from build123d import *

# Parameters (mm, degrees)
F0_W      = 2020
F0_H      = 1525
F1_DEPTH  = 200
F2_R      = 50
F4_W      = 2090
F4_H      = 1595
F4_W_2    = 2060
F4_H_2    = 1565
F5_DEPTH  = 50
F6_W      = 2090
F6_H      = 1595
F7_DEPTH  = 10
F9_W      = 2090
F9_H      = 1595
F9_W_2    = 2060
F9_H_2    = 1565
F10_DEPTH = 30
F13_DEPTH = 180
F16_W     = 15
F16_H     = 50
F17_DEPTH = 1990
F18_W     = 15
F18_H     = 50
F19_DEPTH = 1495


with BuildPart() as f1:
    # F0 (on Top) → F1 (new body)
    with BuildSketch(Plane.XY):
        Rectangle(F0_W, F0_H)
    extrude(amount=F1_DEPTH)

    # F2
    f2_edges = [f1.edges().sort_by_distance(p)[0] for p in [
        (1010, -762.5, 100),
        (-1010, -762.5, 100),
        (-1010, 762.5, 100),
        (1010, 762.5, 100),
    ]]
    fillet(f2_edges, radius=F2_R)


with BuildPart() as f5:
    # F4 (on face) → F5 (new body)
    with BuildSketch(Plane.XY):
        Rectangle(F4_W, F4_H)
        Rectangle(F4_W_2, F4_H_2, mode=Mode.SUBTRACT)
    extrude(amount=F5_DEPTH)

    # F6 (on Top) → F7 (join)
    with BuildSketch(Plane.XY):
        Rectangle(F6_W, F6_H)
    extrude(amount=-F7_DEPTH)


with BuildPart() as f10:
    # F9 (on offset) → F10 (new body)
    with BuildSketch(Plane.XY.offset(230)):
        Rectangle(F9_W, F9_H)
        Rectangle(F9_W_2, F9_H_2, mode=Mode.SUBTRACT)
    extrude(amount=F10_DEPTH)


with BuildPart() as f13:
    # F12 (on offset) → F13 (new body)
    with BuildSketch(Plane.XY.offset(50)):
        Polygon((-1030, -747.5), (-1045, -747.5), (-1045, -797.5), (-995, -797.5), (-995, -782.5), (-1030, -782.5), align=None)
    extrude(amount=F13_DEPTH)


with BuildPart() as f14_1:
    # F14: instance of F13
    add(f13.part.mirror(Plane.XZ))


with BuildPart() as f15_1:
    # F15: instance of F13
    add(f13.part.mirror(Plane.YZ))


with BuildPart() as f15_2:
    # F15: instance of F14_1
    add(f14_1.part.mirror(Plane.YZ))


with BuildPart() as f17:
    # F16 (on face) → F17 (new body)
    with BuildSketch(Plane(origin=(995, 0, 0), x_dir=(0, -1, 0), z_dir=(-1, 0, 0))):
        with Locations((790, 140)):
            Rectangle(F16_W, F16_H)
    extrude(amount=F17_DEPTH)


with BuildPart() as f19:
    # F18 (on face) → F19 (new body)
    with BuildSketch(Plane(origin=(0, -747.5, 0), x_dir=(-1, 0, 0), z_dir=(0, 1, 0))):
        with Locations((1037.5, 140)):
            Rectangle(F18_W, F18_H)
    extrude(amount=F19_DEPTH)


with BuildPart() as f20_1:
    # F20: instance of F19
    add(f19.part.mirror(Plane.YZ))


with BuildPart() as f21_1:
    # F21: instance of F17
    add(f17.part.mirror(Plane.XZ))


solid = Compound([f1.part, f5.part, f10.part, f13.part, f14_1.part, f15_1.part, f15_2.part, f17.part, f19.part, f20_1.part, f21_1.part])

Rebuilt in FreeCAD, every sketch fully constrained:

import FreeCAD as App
import Part
import Sketcher
from FreeCAD import Vector


def edges_at(feature, points):
    """Names of the edges that pass closest to the given points."""
    edges = feature.Shape.Edges
    near = lambda p: min(range(len(edges)), key=lambda i: edges[i].distToShape(Part.Vertex(*p))[0])
    return sorted({f"Edge{near(p) + 1}" for p in points})

doc = App.newDocument("Part")
body = doc.addObject("PartDesign::Body", "Body")

# Sketch on XY plane
sketch1 = doc.addObject("Sketcher::SketchObject", "Sketch")
body.addObject(sketch1)
sketch1.AttachmentSupport = (doc.XY_Plane, [""])
sketch1.MapMode = "FlatFace"
sketch1.addGeometry([
    Part.LineSegment(Vector(-1010, 762, 0), Vector(-1010, -762, 0)),
    Part.LineSegment(Vector(-1010, -762, 0), Vector(1010, -762, 0)),
    Part.LineSegment(Vector(1010, -762, 0), Vector(1010, 762, 0)),
    Part.LineSegment(Vector(1010, 762, 0), Vector(-1010, 762, 0)),
], False)
sketch1.addConstraint([
    Sketcher.Constraint("Coincident", 0, 2, 1, 1),
    Sketcher.Constraint("Coincident", 1, 2, 2, 1),
    Sketcher.Constraint("Coincident", 2, 2, 3, 1),
    Sketcher.Constraint("Coincident", 3, 2, 0, 1),
    Sketcher.Constraint("Vertical", 0),
    Sketcher.Constraint("Horizontal", 1),
    Sketcher.Constraint("Vertical", 2),
    Sketcher.Constraint("Horizontal", 3),
    Sketcher.Constraint("Symmetric", 0, 2, 2, 2, -1, 1),
    Sketcher.Constraint("DistanceX", 1, 1, 1, 2, 2020.0),
    Sketcher.Constraint("DistanceY", 0, 2, 0, 1, 1525.0),
])
pad1 = doc.addObject("PartDesign::Pad", "Pad")
body.addObject(pad1)
pad1.Profile = sketch1
pad1.Length = 200
doc.recompute()

fillet = doc.addObject("PartDesign::Fillet", "Fillet")
body.addObject(fillet)
fillet.Base = (pad1, edges_at(pad1, [
    (1010, -762.5, 100),
    (-1010, -762.5, 100),
    (-1010, 762.5, 100),
    (1010, 762.5, 100),
]))
fillet.Radius = 50
body2 = doc.addObject("PartDesign::Body", "Body001")

# Sketch on XY plane
sketch2 = doc.addObject("Sketcher::SketchObject", "Sketch001")
body2.addObject(sketch2)
sketch2.AttachmentSupport = (doc.getObject("XY_Plane001"), [""])
sketch2.MapMode = "FlatFace"
sketch2.addGeometry([
    Part.LineSegment(Vector(-1045, 798, 0), Vector(-1045, -798, 0)),  # 0
    Part.LineSegment(Vector(-1045, -798, 0), Vector(1045, -798, 0)),  # 1
    Part.LineSegment(Vector(1045, -798, 0), Vector(1045, 798, 0)),  # 2
    Part.LineSegment(Vector(1045, 798, 0), Vector(-1045, 798, 0)),  # 3
    Part.LineSegment(Vector(1030, -782, 0), Vector(-1030, -782, 0)),  # 4
    Part.LineSegment(Vector(-1030, -782, 0), Vector(-1030, 782, 0)),  # 5
    Part.LineSegment(Vector(-1030, 782, 0), Vector(1030, 782, 0)),  # 6
    Part.LineSegment(Vector(1030, 782, 0), Vector(1030, -782, 0)),  # 7
], False)
sketch2.addConstraint([
    Sketcher.Constraint("Coincident", 0, 2, 1, 1),
    Sketcher.Constraint("Coincident", 1, 2, 2, 1),
    Sketcher.Constraint("Coincident", 2, 2, 3, 1),
    Sketcher.Constraint("Coincident", 3, 2, 0, 1),
    Sketcher.Constraint("Coincident", 4, 2, 5, 1),
    Sketcher.Constraint("Coincident", 5, 2, 6, 1),
    Sketcher.Constraint("Coincident", 6, 2, 7, 1),
    Sketcher.Constraint("Coincident", 7, 2, 4, 1),
    Sketcher.Constraint("Vertical", 0),
    Sketcher.Constraint("Horizontal", 1),
    Sketcher.Constraint("Vertical", 2),
    Sketcher.Constraint("Horizontal", 3),
    Sketcher.Constraint("Horizontal", 4),
    Sketcher.Constraint("Vertical", 5),
    Sketcher.Constraint("Horizontal", 6),
    Sketcher.Constraint("Vertical", 7),
    Sketcher.Constraint("Symmetric", 0, 2, 2, 2, -1, 1),
    Sketcher.Constraint("Symmetric", 4, 2, 6, 2, -1, 1),
    Sketcher.Constraint("DistanceX", 1, 1, 1, 2, 2090.0),
    Sketcher.Constraint("DistanceX", 4, 2, 4, 1, 2060.0),
    Sketcher.Constraint("DistanceY", 0, 2, 0, 1, 1595.0),
    Sketcher.Constraint("DistanceY", 5, 1, 5, 2, 1565.0),
])
pad2 = doc.addObject("PartDesign::Pad", "Pad001")
body2.addObject(pad2)
pad2.Profile = sketch2
pad2.Length = 50

# Sketch on XY plane
sketch3 = doc.addObject("Sketcher::SketchObject", "Sketch002")
body2.addObject(sketch3)
sketch3.AttachmentSupport = (doc.getObject("XY_Plane001"), [""])
sketch3.MapMode = "FlatFace"
sketch3.addGeometry([
    Part.LineSegment(Vector(-1045, 798, 0), Vector(-1045, -798, 0)),
    Part.LineSegment(Vector(-1045, -798, 0), Vector(1045, -798, 0)),
    Part.LineSegment(Vector(1045, -798, 0), Vector(1045, 798, 0)),
    Part.LineSegment(Vector(1045, 798, 0), Vector(-1045, 798, 0)),
], False)
sketch3.addConstraint([
    Sketcher.Constraint("Coincident", 0, 2, 1, 1),
    Sketcher.Constraint("Coincident", 1, 2, 2, 1),
    Sketcher.Constraint("Coincident", 2, 2, 3, 1),
    Sketcher.Constraint("Coincident", 3, 2, 0, 1),
    Sketcher.Constraint("Vertical", 0),
    Sketcher.Constraint("Horizontal", 1),
    Sketcher.Constraint("Vertical", 2),
    Sketcher.Constraint("Horizontal", 3),
    Sketcher.Constraint("Symmetric", 0, 2, 2, 2, -1, 1),
    Sketcher.Constraint("DistanceX", 1, 1, 1, 2, 2090.0),
    Sketcher.Constraint("DistanceY", 0, 2, 0, 1, 1595.0),
])
pad3 = doc.addObject("PartDesign::Pad", "Pad002")
body2.addObject(pad3)
pad3.Profile = sketch3
pad3.Length = 10
pad3.Reversed = True
body3 = doc.addObject("PartDesign::Body", "Body002")

# Sketch on XY plane
sketch4 = doc.addObject("Sketcher::SketchObject", "Sketch003")
body3.addObject(sketch4)
sketch4.AttachmentSupport = (doc.getObject("XY_Plane002"), [""])
sketch4.MapMode = "FlatFace"
sketch4.AttachmentOffset = App.Placement(Vector(0, 0, 230), App.Rotation())
sketch4.addGeometry([
    Part.LineSegment(Vector(-1045, 798, 0), Vector(-1045, -798, 0)),  # 0
    Part.LineSegment(Vector(-1045, -798, 0), Vector(1045, -798, 0)),  # 1
    Part.LineSegment(Vector(1045, -798, 0), Vector(1045, 798, 0)),  # 2
    Part.LineSegment(Vector(1045, 798, 0), Vector(-1045, 798, 0)),  # 3
    Part.LineSegment(Vector(1030, -782, 0), Vector(-1030, -782, 0)),  # 4
    Part.LineSegment(Vector(-1030, -782, 0), Vector(-1030, 782, 0)),  # 5
    Part.LineSegment(Vector(-1030, 782, 0), Vector(1030, 782, 0)),  # 6
    Part.LineSegment(Vector(1030, 782, 0), Vector(1030, -782, 0)),  # 7
], False)
sketch4.addConstraint([
    Sketcher.Constraint("Coincident", 0, 2, 1, 1),
    Sketcher.Constraint("Coincident", 1, 2, 2, 1),
    Sketcher.Constraint("Coincident", 2, 2, 3, 1),
    Sketcher.Constraint("Coincident", 3, 2, 0, 1),
    Sketcher.Constraint("Coincident", 4, 2, 5, 1),
    Sketcher.Constraint("Coincident", 5, 2, 6, 1),
    Sketcher.Constraint("Coincident", 6, 2, 7, 1),
    Sketcher.Constraint("Coincident", 7, 2, 4, 1),
    Sketcher.Constraint("Vertical", 0),
    Sketcher.Constraint("Horizontal", 1),
    Sketcher.Constraint("Vertical", 2),
    Sketcher.Constraint("Horizontal", 3),
    Sketcher.Constraint("Horizontal", 4),
    Sketcher.Constraint("Vertical", 5),
    Sketcher.Constraint("Horizontal", 6),
    Sketcher.Constraint("Vertical", 7),
    Sketcher.Constraint("Symmetric", 0, 2, 2, 2, -1, 1),
    Sketcher.Constraint("Symmetric", 4, 2, 6, 2, -1, 1),
    Sketcher.Constraint("DistanceX", 1, 1, 1, 2, 2090.0),
    Sketcher.Constraint("DistanceX", 4, 2, 4, 1, 2060.0),
    Sketcher.Constraint("DistanceY", 0, 2, 0, 1, 1595.0),
    Sketcher.Constraint("DistanceY", 5, 1, 5, 2, 1565.0),
])
pad4 = doc.addObject("PartDesign::Pad", "Pad003")
body3.addObject(pad4)
pad4.Profile = sketch4
pad4.Length = 30
body4 = doc.addObject("PartDesign::Body", "Body003")

# Sketch on XY plane
sketch5 = doc.addObject("Sketcher::SketchObject", "Sketch004")
body4.addObject(sketch5)
sketch5.AttachmentSupport = (doc.getObject("XY_Plane003"), [""])
sketch5.MapMode = "FlatFace"
sketch5.AttachmentOffset = App.Placement(Vector(0, 0, 50), App.Rotation())
sketch5.addGeometry([
    Part.LineSegment(Vector(-1030, -748, 0), Vector(-1045, -748, 0)),  # 0
    Part.LineSegment(Vector(-1045, -748, 0), Vector(-1045, -798, 0)),  # 1
    Part.LineSegment(Vector(-1045, -798, 0), Vector(-995, -798, 0)),  # 2
    Part.LineSegment(Vector(-995, -798, 0), Vector(-995, -782, 0)),  # 3
    Part.LineSegment(Vector(-995, -782, 0), Vector(-1030, -782, 0)),  # 4
    Part.LineSegment(Vector(-1030, -782, 0), Vector(-1030, -748, 0)),  # 5
], False)
sketch5.addConstraint([
    Sketcher.Constraint("Coincident", 0, 2, 1, 1),
    Sketcher.Constraint("Coincident", 1, 2, 2, 1),
    Sketcher.Constraint("Coincident", 2, 2, 3, 1),
    Sketcher.Constraint("Coincident", 3, 2, 4, 1),
    Sketcher.Constraint("Coincident", 4, 2, 5, 1),
    Sketcher.Constraint("Coincident", 5, 2, 0, 1),
    Sketcher.Constraint("Horizontal", 0),
    Sketcher.Constraint("Vertical", 1),
    Sketcher.Constraint("Horizontal", 2),
    Sketcher.Constraint("Vertical", 3),
    Sketcher.Constraint("Horizontal", 4),
    Sketcher.Constraint("Vertical", 5),
    Sketcher.Constraint("Equal", 2, 1),
    Sketcher.Constraint("Equal", 0, 3),
    Sketcher.Constraint("DistanceX", 0, 2, 0, 1, 15.0),
    Sketcher.Constraint("DistanceX", 2, 1, 2, 2, 50.0),
    Sketcher.Constraint("DistanceX", 0, 2, -1, 1, 1045.0),
    Sketcher.Constraint("DistanceY", 0, 2, -1, 1, 747.5),
])
pad5 = doc.addObject("PartDesign::Pad", "Pad004")
body4.addObject(pad5)
pad5.Profile = sketch5
pad5.Length = 180
body5 = doc.addObject("PartDesign::Body", "Body004")
doc.recompute()

mirroring = doc.addObject("Part::Mirroring", "Mirroring")
mirroring.Source = body4
mirroring.Base = Vector(0, 0, 0)
mirroring.Normal = Vector(0, -1, 0)
body5.BaseFeature = mirroring
doc.recompute()
body6 = doc.addObject("PartDesign::Body", "Body005")
doc.recompute()

mirroring2 = doc.addObject("Part::Mirroring", "Mirroring001")
mirroring2.Source = body4
mirroring2.Base = Vector(0, 0, 0)
mirroring2.Normal = Vector(1, 0, 0)
body6.BaseFeature = mirroring2
doc.recompute()
body7 = doc.addObject("PartDesign::Body", "Body006")
doc.recompute()

mirroring3 = doc.addObject("Part::Mirroring", "Mirroring002")
mirroring3.Source = body5
mirroring3.Base = Vector(0, 0, 0)
mirroring3.Normal = Vector(1, 0, 0)
body7.BaseFeature = mirroring3
doc.recompute()
body8 = doc.addObject("PartDesign::Body", "Body007")

# Sketch on YZ plane
sketch6 = doc.addObject("Sketcher::SketchObject", "Sketch005")
body8.addObject(sketch6)
sketch6.AttachmentSupport = (doc.getObject("YZ_Plane007"), [""])
sketch6.MapMode = "FlatFace"
sketch6.AttachmentOffset = App.Placement(Vector(0, 0, 995), App.Rotation())
sketch6.addGeometry([
    Part.LineSegment(Vector(-782, 165, 0), Vector(-782, 115, 0)),
    Part.LineSegment(Vector(-782, 115, 0), Vector(-798, 115, 0)),
    Part.LineSegment(Vector(-798, 115, 0), Vector(-798, 165, 0)),
    Part.LineSegment(Vector(-798, 165, 0), Vector(-782, 165, 0)),
], False)
sketch6.addConstraint([
    Sketcher.Constraint("Coincident", 0, 2, 1, 1),
    Sketcher.Constraint("Coincident", 1, 2, 2, 1),
    Sketcher.Constraint("Coincident", 2, 2, 3, 1),
    Sketcher.Constraint("Coincident", 3, 2, 0, 1),
    Sketcher.Constraint("Vertical", 0),
    Sketcher.Constraint("Horizontal", 1),
    Sketcher.Constraint("Vertical", 2),
    Sketcher.Constraint("Horizontal", 3),
    Sketcher.Constraint("DistanceX", 1, 2, 1, 1, 15.0),
    Sketcher.Constraint("DistanceY", 0, 2, 0, 1, 50.0),
    Sketcher.Constraint("DistanceY", -1, 1, 0, 2, 115.0),
    Sketcher.Constraint("DistanceX", 0, 2, -1, 1, 782.5),
])
pad6 = doc.addObject("PartDesign::Pad", "Pad005")
body8.addObject(pad6)
pad6.Profile = sketch6
pad6.Length = 1990
pad6.Reversed = True
body9 = doc.addObject("PartDesign::Body", "Body008")

# Sketch on XZ plane
sketch7 = doc.addObject("Sketcher::SketchObject", "Sketch006")
body9.addObject(sketch7)
sketch7.AttachmentSupport = (doc.getObject("XZ_Plane008"), [""])
sketch7.MapMode = "FlatFace"
sketch7.AttachmentOffset = App.Placement(Vector(0, 0, 747.5), App.Rotation())
sketch7.addGeometry([
    Part.LineSegment(Vector(-1030, 165, 0), Vector(-1030, 115, 0)),
    Part.LineSegment(Vector(-1030, 115, 0), Vector(-1045, 115, 0)),
    Part.LineSegment(Vector(-1045, 115, 0), Vector(-1045, 165, 0)),
    Part.LineSegment(Vector(-1045, 165, 0), Vector(-1030, 165, 0)),
], False)
sketch7.addConstraint([
    Sketcher.Constraint("Coincident", 0, 2, 1, 1),
    Sketcher.Constraint("Coincident", 1, 2, 2, 1),
    Sketcher.Constraint("Coincident", 2, 2, 3, 1),
    Sketcher.Constraint("Coincident", 3, 2, 0, 1),
    Sketcher.Constraint("Vertical", 0),
    Sketcher.Constraint("Horizontal", 1),
    Sketcher.Constraint("Vertical", 2),
    Sketcher.Constraint("Horizontal", 3),
    Sketcher.Constraint("DistanceX", 1, 2, 1, 1, 15.0),
    Sketcher.Constraint("DistanceY", 0, 2, 0, 1, 50.0),
    Sketcher.Constraint("DistanceX", 0, 2, -1, 1, 1030.0),
    Sketcher.Constraint("DistanceY", -1, 1, 0, 2, 115.0),
])
pad7 = doc.addObject("PartDesign::Pad", "Pad006")
body9.addObject(pad7)
pad7.Profile = sketch7
pad7.Length = 1495
pad7.Reversed = True
body10 = doc.addObject("PartDesign::Body", "Body009")
doc.recompute()

mirroring4 = doc.addObject("Part::Mirroring", "Mirroring003")
mirroring4.Source = body9
mirroring4.Base = Vector(0, 0, 0)
mirroring4.Normal = Vector(1, 0, 0)
body10.BaseFeature = mirroring4
doc.recompute()
body11 = doc.addObject("PartDesign::Body", "Body010")
doc.recompute()

mirroring5 = doc.addObject("Part::Mirroring", "Mirroring004")
mirroring5.Source = body8
mirroring5.Base = Vector(0, 0, 0)
mirroring5.Normal = Vector(0, -1, 0)
body11.BaseFeature = mirroring5
doc.recompute()
mirroring.Visibility = False
mirroring2.Visibility = False
mirroring3.Visibility = False
mirroring4.Visibility = False
mirroring5.Visibility = False

doc.recompute()
